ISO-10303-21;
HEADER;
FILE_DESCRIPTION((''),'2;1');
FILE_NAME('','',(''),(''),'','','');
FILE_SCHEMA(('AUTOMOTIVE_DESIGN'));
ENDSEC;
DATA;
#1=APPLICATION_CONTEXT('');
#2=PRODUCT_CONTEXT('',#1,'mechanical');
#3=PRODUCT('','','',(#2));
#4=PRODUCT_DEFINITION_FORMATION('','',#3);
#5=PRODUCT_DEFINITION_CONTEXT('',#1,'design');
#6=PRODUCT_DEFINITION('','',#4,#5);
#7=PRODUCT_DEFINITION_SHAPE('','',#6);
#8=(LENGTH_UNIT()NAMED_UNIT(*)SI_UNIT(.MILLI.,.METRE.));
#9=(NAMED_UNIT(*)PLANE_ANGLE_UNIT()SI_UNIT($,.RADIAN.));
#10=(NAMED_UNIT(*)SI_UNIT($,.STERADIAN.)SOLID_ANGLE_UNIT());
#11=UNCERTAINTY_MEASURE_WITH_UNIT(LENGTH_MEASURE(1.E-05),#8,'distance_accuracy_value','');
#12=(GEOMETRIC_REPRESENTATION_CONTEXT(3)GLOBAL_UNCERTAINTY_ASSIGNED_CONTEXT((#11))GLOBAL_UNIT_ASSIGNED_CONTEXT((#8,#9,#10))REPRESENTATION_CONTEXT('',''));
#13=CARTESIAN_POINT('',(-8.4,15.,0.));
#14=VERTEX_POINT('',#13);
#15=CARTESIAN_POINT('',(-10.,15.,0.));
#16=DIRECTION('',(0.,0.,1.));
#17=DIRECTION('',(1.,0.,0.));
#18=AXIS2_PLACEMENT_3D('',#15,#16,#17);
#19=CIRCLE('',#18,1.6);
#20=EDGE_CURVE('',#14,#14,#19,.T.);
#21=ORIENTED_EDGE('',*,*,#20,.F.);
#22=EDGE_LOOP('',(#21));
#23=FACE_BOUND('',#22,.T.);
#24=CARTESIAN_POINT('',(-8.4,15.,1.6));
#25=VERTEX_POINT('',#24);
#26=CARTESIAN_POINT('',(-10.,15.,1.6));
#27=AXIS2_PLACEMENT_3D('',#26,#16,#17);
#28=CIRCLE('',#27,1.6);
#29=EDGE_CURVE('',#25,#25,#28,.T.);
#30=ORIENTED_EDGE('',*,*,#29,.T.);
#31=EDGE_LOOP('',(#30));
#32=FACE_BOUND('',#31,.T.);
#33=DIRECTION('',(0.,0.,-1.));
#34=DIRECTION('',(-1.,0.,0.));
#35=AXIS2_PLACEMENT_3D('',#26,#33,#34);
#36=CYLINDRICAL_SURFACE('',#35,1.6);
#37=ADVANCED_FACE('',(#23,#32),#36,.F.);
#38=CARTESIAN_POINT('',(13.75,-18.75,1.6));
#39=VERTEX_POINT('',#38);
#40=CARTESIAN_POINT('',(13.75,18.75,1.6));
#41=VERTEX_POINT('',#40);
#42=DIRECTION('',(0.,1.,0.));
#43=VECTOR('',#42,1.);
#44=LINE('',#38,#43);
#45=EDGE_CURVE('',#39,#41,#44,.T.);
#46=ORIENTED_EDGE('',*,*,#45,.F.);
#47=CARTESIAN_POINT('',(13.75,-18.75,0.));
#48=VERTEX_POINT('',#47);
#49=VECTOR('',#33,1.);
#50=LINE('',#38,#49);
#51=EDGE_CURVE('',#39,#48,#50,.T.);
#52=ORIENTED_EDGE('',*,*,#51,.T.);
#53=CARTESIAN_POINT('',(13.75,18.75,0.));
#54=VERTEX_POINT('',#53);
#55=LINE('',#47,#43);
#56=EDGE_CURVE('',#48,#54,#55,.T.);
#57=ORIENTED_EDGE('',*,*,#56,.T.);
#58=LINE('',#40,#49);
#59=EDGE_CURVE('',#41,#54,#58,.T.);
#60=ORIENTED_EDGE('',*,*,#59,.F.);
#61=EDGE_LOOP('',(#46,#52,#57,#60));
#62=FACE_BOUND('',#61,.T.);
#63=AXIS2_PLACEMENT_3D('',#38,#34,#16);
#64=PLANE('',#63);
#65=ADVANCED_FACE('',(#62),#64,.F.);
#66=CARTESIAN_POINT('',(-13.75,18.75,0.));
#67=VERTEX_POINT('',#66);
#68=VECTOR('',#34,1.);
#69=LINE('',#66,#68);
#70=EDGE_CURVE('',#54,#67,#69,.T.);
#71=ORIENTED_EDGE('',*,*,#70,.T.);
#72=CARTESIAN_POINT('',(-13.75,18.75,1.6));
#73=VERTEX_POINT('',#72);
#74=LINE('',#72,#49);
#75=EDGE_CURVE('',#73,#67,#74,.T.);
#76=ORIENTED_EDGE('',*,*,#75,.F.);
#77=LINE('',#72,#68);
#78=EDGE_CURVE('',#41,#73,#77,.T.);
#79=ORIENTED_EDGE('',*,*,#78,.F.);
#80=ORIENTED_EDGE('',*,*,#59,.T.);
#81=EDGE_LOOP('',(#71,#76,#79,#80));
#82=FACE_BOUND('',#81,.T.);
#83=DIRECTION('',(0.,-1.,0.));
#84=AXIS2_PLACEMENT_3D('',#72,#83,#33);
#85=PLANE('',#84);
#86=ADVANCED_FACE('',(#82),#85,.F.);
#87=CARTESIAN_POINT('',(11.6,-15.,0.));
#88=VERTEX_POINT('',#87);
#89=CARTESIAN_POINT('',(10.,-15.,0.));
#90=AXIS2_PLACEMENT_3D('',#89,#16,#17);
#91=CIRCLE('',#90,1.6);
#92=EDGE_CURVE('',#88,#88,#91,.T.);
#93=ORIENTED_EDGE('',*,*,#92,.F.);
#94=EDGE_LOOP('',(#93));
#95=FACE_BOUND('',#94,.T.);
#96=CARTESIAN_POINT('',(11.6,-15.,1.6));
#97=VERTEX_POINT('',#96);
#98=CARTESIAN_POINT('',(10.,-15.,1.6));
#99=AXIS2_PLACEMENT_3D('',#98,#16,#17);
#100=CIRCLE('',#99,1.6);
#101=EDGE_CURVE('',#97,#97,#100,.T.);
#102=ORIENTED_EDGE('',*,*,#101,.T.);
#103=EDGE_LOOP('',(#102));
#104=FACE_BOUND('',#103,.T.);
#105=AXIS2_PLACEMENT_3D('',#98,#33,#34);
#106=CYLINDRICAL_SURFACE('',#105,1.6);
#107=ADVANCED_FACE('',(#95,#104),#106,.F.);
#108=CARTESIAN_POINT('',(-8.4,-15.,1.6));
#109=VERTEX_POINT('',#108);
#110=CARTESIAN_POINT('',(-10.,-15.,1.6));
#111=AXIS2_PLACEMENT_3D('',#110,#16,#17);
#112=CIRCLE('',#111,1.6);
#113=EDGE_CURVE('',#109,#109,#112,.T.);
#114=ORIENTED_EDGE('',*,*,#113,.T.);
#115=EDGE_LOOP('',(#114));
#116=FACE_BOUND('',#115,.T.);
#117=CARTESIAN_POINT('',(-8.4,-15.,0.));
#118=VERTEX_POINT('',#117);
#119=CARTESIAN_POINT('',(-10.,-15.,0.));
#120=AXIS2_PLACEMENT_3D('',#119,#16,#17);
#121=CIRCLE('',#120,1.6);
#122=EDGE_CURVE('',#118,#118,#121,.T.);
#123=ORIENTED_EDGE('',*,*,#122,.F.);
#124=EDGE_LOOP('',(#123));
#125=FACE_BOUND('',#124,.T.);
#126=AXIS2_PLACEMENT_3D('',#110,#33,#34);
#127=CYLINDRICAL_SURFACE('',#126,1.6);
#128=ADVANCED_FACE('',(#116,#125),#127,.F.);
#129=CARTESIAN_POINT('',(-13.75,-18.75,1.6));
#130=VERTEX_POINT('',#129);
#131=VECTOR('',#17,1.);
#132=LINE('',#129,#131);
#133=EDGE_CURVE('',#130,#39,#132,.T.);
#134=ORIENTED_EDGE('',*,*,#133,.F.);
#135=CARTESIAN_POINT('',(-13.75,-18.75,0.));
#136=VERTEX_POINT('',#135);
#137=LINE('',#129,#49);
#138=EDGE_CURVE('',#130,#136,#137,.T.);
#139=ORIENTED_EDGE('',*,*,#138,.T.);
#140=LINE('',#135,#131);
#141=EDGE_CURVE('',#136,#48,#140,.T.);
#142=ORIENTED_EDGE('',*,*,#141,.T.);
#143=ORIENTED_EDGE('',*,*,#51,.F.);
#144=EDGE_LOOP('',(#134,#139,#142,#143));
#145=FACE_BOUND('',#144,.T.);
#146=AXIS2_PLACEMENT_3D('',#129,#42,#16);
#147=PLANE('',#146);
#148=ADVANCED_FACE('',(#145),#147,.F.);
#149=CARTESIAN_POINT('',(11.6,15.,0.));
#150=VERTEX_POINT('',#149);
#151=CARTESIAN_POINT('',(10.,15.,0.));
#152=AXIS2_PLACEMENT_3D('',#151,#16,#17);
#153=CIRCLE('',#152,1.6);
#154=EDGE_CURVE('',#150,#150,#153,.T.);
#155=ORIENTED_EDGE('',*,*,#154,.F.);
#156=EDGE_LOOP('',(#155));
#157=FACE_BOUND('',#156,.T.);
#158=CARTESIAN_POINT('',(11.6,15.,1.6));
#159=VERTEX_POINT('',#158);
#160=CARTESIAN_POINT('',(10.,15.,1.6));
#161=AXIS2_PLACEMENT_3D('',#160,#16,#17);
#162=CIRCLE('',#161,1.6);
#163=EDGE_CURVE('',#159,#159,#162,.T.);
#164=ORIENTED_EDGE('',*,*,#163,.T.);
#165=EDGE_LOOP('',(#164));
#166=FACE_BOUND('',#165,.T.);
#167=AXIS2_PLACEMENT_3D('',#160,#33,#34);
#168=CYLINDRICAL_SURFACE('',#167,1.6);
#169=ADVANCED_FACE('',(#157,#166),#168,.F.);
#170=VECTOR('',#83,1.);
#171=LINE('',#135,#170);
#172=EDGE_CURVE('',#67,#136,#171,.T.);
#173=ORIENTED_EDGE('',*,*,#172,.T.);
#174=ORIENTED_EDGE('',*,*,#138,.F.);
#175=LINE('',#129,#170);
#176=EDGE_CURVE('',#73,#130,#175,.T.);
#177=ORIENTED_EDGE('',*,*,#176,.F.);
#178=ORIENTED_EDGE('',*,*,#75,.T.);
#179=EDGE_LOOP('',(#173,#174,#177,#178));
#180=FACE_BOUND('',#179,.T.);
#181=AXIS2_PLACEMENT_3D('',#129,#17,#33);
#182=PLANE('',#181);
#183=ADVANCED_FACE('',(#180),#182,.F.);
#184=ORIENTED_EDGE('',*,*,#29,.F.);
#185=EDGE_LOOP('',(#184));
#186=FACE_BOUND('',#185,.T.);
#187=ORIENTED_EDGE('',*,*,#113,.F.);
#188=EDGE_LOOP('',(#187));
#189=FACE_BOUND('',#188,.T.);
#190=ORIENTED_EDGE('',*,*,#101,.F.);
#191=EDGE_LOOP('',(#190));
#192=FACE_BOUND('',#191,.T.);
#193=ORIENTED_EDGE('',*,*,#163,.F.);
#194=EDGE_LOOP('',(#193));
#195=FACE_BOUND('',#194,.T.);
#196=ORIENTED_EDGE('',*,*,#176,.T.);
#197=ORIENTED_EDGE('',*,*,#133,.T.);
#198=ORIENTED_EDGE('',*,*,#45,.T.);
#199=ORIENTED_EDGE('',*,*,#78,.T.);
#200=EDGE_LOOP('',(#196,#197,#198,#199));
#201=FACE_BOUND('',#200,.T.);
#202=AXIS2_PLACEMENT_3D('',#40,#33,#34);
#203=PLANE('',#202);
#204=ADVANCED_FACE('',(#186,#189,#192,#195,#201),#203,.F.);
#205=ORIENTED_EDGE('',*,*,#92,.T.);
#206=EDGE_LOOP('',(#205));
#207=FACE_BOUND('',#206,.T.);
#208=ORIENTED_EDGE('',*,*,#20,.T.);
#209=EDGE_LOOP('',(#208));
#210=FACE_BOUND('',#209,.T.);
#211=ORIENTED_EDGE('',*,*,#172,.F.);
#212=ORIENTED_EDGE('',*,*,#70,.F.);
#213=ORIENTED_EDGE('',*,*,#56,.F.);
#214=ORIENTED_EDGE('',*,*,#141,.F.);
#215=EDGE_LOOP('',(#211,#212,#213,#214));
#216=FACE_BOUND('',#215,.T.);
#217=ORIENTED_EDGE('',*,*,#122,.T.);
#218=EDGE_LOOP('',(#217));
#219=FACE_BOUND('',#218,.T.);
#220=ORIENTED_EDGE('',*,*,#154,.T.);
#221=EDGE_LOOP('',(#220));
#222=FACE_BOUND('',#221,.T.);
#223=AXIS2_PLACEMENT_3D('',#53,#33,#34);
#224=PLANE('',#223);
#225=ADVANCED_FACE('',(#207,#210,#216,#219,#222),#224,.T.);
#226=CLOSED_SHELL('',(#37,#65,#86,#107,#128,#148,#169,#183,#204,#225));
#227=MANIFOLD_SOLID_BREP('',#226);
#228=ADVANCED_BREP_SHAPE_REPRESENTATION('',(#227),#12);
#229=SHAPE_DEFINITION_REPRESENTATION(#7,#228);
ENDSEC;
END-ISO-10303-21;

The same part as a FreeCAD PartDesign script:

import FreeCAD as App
import Part
import Sketcher


def add_polygon(sketch, points):
    """Adds a closed chain of lines whose ends are joined by coincident constraints."""
    first, n = sketch.GeometryCount, len(points)
    for a, b in zip(points, points[1:] + points[:1]):
        sketch.addGeometry(Part.LineSegment(App.Vector(*a, 0), App.Vector(*b, 0)), False)
    for i in range(n):
        sketch.addConstraint(Sketcher.Constraint("Coincident", first + i, 2, first + (i + 1) % n, 1))

doc = App.newDocument("Part")
body = doc.addObject("PartDesign::Body", "Body")

sketch1 = body.newObject("Sketcher::SketchObject", "Sketch")
sketch1.AttachmentSupport = (doc.getObject("XY_Plane"), [""])
sketch1.MapMode = "FlatFace"
add_polygon(sketch1, [(-13.8, 18.8), (-13.8, -18.8), (13.8, -18.8), (13.8, 18.8)])
sketch1.addGeometry(Part.Circle(App.Vector(-10, -15, 0), App.Vector(0, 0, 1), 1.6), False)
sketch1.addGeometry(Part.Circle(App.Vector(10, -15, 0), App.Vector(0, 0, 1), 1.6), False)
sketch1.addGeometry(Part.Circle(App.Vector(-10, 15, 0), App.Vector(0, 0, 1), 1.6), False)
sketch1.addGeometry(Part.Circle(App.Vector(10, 15, 0), App.Vector(0, 0, 1), 1.6), False)
sketch1.addConstraint([
    Sketcher.Constraint("Vertical", 0),
    Sketcher.Constraint("Horizontal", 1),
    Sketcher.Constraint("Vertical", 2),
    Sketcher.Constraint("Horizontal", 3),
    Sketcher.Constraint("Equal", 4, 5),
    Sketcher.Constraint("Equal", 5, 6),
    Sketcher.Constraint("Equal", 6, 7),
    Sketcher.Constraint("Symmetric", 5, 3, 6, 3, -1, 1),
    Sketcher.Constraint("Symmetric", 4, 3, 7, 3, -1, 1),
    Sketcher.Constraint("Symmetric", 0, 2, 2, 2, -1, 1),
    Sketcher.Constraint("Symmetric", 4, 3, 5, 3, -2),
    Sketcher.Constraint("Diameter", 4, 3.2),
    Sketcher.Constraint("DistanceX", 1, 1, 1, 2, 27.5),
    Sketcher.Constraint("DistanceY", 0, 2, 0, 1, 37.5),
    Sketcher.Constraint("DistanceX", 4, 3, -1, 1, 10.0),
    Sketcher.Constraint("DistanceY", 4, 3, -1, 1, 15.0),
])
pad1 = body.newObject("PartDesign::Pad", "Pad")
pad1.Profile = sketch1
pad1.Length = 1.6

doc.recompute()
